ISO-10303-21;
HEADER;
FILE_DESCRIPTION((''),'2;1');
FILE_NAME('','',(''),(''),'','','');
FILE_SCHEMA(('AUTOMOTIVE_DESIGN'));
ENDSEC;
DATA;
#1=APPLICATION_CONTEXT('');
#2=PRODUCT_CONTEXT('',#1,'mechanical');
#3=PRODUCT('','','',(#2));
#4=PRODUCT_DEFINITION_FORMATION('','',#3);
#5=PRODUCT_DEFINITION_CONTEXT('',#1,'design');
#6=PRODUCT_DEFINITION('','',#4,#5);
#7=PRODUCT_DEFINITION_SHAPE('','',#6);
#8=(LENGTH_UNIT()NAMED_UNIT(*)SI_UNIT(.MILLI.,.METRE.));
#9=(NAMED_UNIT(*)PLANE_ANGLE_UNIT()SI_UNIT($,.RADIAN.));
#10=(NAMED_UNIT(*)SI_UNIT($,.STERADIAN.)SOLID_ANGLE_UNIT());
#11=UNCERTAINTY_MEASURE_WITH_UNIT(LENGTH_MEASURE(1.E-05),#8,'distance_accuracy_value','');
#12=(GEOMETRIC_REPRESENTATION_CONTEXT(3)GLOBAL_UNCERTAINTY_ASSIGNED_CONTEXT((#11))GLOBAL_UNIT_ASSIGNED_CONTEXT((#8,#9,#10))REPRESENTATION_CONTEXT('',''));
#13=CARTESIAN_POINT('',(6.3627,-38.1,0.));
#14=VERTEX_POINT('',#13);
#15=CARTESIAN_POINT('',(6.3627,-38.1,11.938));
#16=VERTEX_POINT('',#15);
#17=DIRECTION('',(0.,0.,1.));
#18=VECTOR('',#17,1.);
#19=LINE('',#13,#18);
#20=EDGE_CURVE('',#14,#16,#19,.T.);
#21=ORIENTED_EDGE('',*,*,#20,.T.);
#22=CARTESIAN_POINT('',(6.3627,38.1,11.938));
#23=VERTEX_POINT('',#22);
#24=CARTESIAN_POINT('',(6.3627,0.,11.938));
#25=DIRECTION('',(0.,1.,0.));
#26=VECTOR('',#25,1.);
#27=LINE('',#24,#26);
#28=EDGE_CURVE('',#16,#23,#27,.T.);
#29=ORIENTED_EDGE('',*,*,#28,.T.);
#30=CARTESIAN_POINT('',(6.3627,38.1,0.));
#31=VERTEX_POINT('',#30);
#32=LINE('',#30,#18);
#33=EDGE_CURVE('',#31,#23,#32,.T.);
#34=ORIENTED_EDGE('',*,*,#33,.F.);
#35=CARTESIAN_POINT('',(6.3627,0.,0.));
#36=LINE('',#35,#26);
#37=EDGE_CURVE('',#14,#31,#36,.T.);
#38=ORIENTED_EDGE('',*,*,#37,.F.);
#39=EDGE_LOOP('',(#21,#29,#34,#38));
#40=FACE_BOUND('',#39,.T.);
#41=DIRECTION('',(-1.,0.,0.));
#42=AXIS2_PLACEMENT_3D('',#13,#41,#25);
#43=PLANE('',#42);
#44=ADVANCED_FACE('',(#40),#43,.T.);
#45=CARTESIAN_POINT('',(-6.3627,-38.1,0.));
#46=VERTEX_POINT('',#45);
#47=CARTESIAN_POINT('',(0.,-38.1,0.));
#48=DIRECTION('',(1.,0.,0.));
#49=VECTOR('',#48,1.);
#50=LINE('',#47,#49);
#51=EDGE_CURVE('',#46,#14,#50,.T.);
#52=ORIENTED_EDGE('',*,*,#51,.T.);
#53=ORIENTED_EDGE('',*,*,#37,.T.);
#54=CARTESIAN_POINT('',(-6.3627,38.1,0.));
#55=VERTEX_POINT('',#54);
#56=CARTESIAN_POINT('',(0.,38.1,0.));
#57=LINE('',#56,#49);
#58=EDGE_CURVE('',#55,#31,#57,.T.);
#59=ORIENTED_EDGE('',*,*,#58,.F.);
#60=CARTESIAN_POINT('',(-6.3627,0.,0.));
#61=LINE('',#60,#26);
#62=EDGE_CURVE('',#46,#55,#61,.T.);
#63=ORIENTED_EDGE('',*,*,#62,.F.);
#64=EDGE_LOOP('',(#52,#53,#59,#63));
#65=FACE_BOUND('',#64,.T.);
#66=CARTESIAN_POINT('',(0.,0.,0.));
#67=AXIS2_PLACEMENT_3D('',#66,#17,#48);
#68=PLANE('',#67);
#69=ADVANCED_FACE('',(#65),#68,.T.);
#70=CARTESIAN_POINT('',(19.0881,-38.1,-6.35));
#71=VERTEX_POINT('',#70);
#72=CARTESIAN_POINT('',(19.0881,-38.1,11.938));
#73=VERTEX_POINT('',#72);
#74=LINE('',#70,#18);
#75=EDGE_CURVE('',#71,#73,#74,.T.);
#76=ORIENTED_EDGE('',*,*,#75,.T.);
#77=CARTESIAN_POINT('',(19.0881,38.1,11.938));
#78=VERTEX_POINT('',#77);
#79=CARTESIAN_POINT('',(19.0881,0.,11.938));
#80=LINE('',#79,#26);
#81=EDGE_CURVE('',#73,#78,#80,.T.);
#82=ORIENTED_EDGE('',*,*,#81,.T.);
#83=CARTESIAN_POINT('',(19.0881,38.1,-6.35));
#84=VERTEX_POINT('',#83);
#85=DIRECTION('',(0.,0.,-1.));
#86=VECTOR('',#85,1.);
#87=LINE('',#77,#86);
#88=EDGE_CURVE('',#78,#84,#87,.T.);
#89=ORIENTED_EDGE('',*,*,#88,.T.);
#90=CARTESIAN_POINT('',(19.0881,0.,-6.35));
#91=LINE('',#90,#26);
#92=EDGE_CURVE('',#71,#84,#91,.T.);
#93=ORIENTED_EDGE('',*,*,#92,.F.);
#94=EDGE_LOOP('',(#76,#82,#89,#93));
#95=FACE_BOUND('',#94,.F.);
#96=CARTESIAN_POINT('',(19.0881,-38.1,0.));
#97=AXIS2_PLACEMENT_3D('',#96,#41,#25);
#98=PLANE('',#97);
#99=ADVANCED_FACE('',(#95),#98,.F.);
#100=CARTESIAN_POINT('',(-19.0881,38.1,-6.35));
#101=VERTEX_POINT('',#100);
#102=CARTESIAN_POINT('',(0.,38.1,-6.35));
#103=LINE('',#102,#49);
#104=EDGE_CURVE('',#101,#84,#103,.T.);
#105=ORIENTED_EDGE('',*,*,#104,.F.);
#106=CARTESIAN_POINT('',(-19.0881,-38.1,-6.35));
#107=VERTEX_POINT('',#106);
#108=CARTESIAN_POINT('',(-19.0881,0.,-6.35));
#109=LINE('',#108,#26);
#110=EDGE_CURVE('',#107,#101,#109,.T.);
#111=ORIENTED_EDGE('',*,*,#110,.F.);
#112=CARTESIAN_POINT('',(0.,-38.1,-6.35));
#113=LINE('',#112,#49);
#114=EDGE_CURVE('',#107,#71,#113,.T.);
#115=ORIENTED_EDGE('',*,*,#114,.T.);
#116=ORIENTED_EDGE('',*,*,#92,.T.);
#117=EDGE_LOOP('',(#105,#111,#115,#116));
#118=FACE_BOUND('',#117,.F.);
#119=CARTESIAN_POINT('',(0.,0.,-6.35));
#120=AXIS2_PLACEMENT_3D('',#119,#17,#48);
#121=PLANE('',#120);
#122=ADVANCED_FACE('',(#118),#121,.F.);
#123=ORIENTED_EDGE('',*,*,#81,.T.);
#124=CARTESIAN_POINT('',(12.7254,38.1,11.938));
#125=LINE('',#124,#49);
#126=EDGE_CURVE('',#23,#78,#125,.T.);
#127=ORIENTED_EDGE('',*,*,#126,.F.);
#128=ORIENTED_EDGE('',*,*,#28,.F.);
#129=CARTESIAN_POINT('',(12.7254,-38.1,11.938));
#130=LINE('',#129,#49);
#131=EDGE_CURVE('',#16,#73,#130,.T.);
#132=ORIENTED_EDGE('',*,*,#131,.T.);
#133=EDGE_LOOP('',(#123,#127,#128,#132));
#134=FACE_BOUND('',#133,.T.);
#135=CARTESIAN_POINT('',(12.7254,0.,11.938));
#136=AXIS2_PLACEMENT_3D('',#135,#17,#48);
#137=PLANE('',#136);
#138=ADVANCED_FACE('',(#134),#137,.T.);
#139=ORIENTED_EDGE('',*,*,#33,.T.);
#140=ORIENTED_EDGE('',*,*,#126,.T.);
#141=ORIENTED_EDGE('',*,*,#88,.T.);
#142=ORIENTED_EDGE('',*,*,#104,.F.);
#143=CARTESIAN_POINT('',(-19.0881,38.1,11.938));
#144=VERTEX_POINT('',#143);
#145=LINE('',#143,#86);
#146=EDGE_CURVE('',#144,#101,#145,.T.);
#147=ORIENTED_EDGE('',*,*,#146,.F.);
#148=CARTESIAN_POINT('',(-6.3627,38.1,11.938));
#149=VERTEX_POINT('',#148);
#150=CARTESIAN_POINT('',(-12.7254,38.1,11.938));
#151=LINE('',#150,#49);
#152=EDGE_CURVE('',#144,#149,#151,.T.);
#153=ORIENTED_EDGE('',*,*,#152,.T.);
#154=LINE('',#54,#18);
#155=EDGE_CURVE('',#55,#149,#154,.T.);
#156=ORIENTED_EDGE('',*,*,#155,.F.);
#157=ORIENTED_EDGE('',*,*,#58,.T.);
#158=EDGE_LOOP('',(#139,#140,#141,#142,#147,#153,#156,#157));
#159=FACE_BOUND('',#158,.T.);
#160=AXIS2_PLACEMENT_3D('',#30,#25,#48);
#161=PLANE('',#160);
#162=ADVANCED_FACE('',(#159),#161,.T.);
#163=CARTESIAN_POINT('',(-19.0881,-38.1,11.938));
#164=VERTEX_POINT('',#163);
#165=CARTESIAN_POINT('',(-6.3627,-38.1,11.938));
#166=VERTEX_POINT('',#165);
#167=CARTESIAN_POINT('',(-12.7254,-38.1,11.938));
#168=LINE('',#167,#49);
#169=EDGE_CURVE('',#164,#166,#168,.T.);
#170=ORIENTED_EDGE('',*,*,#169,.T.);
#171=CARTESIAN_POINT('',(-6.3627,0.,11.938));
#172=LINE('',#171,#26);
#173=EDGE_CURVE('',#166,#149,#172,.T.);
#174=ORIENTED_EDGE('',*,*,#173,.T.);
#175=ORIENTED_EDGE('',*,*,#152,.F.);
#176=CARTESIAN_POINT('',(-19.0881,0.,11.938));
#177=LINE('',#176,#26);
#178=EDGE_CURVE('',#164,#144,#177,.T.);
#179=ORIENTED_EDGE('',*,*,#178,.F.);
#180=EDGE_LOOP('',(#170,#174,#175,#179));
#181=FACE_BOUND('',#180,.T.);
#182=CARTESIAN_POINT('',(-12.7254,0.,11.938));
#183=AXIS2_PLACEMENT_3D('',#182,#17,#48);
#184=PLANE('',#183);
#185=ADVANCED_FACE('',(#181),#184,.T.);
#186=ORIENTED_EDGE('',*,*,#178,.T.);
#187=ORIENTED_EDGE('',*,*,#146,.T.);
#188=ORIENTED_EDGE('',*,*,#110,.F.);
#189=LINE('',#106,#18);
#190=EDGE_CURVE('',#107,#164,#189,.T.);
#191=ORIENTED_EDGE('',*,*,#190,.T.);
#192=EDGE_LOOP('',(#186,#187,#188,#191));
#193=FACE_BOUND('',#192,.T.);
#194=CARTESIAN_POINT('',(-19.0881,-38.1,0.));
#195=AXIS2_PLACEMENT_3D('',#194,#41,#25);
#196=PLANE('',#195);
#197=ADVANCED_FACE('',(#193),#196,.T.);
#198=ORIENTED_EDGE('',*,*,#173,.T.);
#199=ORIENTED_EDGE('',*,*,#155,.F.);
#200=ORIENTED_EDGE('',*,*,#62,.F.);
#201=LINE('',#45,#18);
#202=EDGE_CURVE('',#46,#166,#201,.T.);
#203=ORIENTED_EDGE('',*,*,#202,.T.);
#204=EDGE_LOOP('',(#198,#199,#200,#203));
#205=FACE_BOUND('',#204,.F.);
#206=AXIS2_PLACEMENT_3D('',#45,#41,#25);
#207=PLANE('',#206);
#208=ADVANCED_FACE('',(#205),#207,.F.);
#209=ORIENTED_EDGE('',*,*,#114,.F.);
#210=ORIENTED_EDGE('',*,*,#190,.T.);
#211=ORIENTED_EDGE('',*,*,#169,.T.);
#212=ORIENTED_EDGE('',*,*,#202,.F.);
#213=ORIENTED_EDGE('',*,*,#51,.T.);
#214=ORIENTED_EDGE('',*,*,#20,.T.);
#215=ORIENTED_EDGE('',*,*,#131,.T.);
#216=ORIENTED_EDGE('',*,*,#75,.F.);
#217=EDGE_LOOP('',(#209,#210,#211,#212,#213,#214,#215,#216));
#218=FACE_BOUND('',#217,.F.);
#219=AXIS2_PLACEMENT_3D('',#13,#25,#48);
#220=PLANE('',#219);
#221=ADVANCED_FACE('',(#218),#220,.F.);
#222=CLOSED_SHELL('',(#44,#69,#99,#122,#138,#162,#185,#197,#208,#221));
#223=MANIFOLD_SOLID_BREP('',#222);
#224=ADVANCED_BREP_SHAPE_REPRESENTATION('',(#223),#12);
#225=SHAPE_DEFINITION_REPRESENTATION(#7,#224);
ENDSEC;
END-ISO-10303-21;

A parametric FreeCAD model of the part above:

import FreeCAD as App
import Part
import Sketcher
from FreeCAD import Vector
Q = App.Units.Quantity

doc = App.newDocument("Part")
body = doc.addObject("PartDesign::Body", "Body")

# Sketch on XY plane
sketch1 = body.newObject("Sketcher::SketchObject", "Sketch")
sketch1.AttachmentSupport = (doc.getObject("XY_Plane"), [""])
sketch1.MapMode = "FlatFace"
sketch1.addGeometry([
    Part.LineSegment(Vector(-19, 38, 0), Vector(-19, -38, 0)),
    Part.LineSegment(Vector(-19, -38, 0), Vector(19, -38, 0)),
    Part.LineSegment(Vector(19, -38, 0), Vector(19, 38, 0)),
    Part.LineSegment(Vector(19, 38, 0), Vector(-19, 38, 0)),
], False)
sketch1.addConstraint([
    Sketcher.Constraint("Coincident", 0, 2, 1, 1),
    Sketcher.Constraint("Coincident", 1, 2, 2, 1),
    Sketcher.Constraint("Coincident", 2, 2, 3, 1),
    Sketcher.Constraint("Coincident", 3, 2, 0, 1),
    Sketcher.Constraint("Vertical", 0),
    Sketcher.Constraint("Horizontal", 1),
    Sketcher.Constraint("Vertical", 2),
    Sketcher.Constraint("Horizontal", 3),
    Sketcher.Constraint("Symmetric", 0, 2, 2, 2, -1, 1),
    Sketcher.Constraint("DistanceY", 0, 2, 0, 1, Q("3 in")),
    Sketcher.Constraint("DistanceX", 1, 1, 1, 2, Q("1.503 in")),
])
pad1 = body.newObject("PartDesign::Pad", "Pad")
pad1.Profile = sketch1
pad1.Length = Q("0.25 in")
pad1.Reversed = True

# Sketch on XY plane
sketch2 = body.newObject("Sketcher::SketchObject", "Sketch001")
sketch2.AttachmentSupport = (doc.getObject("XY_Plane"), [""])
sketch2.MapMode = "FlatFace"
sketch2.addGeometry([
    Part.LineSegment(Vector(-19, 38, 0), Vector(-19, -38, 0)),
    Part.LineSegment(Vector(-19, -38, 0), Vector(-6, -38, 0)),
    Part.LineSegment(Vector(-6, -38, 0), Vector(-6, 38, 0)),
    Part.LineSegment(Vector(-6, 38, 0), Vector(-19, 38, 0)),
], False)
sketch2.addConstraint([
    Sketcher.Constraint("Coincident", 0, 2, 1, 1),
    Sketcher.Constraint("Coincident", 1, 2, 2, 1),
    Sketcher.Constraint("Coincident", 2, 2, 3, 1),
    Sketcher.Constraint("Coincident", 3, 2, 0, 1),
    Sketcher.Constraint("Vertical", 0),
    Sketcher.Constraint("Horizontal", 1),
    Sketcher.Constraint("Vertical", 2),
    Sketcher.Constraint("Horizontal", 3),
    Sketcher.Constraint("DistanceY", 0, 2, 0, 1, Q("3 in")),
    Sketcher.Constraint("DistanceY", 0, 2, -1, 1, Q("1.5 in")),
    Sketcher.Constraint("DistanceX", 1, 1, 1, 2, Q("0.501 in")),
    Sketcher.Constraint("DistanceX", 0, 2, -1, 1, Q("0.7515 in")),
])
pad2 = body.newObject("PartDesign::Pad", "Pad001")
pad2.Profile = sketch2
pad2.Length = Q("0.47 in")

# Sketch on XY plane
sketch3 = body.newObject("Sketcher::SketchObject", "Sketch002")
sketch3.AttachmentSupport = (doc.getObject("XY_Plane"), [""])
sketch3.MapMode = "FlatFace"
sketch3.addGeometry([
    Part.LineSegment(Vector(6, 38, 0), Vector(6, -38, 0)),
    Part.LineSegment(Vector(6, -38, 0), Vector(19, -38, 0)),
    Part.LineSegment(Vector(19, -38, 0), Vector(19, 38, 0)),
    Part.LineSegment(Vector(19, 38, 0), Vector(6, 38, 0)),
], False)
sketch3.addConstraint([
    Sketcher.Constraint("Coincident", 0, 2, 1, 1),
    Sketcher.Constraint("Coincident", 1, 2, 2, 1),
    Sketcher.Constraint("Coincident", 2, 2, 3, 1),
    Sketcher.Constraint("Coincident", 3, 2, 0, 1),
    Sketcher.Constraint("Vertical", 0),
    Sketcher.Constraint("Horizontal", 1),
    Sketcher.Constraint("Vertical", 2),
    Sketcher.Constraint("Horizontal", 3),
    Sketcher.Constraint("DistanceY", 0, 2, 0, 1, Q("3 in")),
    Sketcher.Constraint("DistanceY", 0, 2, -1, 1, Q("1.5 in")),
    Sketcher.Constraint("DistanceX", 1, 1, 1, 2, Q("0.501 in")),
    Sketcher.Constraint("DistanceX", -1, 1, 0, 2, Q("0.2505 in")),
])
pad3 = body.newObject("PartDesign::Pad", "Pad002")
pad3.Profile = sketch3
pad3.Length = Q("0.47 in")

doc.recompute()
